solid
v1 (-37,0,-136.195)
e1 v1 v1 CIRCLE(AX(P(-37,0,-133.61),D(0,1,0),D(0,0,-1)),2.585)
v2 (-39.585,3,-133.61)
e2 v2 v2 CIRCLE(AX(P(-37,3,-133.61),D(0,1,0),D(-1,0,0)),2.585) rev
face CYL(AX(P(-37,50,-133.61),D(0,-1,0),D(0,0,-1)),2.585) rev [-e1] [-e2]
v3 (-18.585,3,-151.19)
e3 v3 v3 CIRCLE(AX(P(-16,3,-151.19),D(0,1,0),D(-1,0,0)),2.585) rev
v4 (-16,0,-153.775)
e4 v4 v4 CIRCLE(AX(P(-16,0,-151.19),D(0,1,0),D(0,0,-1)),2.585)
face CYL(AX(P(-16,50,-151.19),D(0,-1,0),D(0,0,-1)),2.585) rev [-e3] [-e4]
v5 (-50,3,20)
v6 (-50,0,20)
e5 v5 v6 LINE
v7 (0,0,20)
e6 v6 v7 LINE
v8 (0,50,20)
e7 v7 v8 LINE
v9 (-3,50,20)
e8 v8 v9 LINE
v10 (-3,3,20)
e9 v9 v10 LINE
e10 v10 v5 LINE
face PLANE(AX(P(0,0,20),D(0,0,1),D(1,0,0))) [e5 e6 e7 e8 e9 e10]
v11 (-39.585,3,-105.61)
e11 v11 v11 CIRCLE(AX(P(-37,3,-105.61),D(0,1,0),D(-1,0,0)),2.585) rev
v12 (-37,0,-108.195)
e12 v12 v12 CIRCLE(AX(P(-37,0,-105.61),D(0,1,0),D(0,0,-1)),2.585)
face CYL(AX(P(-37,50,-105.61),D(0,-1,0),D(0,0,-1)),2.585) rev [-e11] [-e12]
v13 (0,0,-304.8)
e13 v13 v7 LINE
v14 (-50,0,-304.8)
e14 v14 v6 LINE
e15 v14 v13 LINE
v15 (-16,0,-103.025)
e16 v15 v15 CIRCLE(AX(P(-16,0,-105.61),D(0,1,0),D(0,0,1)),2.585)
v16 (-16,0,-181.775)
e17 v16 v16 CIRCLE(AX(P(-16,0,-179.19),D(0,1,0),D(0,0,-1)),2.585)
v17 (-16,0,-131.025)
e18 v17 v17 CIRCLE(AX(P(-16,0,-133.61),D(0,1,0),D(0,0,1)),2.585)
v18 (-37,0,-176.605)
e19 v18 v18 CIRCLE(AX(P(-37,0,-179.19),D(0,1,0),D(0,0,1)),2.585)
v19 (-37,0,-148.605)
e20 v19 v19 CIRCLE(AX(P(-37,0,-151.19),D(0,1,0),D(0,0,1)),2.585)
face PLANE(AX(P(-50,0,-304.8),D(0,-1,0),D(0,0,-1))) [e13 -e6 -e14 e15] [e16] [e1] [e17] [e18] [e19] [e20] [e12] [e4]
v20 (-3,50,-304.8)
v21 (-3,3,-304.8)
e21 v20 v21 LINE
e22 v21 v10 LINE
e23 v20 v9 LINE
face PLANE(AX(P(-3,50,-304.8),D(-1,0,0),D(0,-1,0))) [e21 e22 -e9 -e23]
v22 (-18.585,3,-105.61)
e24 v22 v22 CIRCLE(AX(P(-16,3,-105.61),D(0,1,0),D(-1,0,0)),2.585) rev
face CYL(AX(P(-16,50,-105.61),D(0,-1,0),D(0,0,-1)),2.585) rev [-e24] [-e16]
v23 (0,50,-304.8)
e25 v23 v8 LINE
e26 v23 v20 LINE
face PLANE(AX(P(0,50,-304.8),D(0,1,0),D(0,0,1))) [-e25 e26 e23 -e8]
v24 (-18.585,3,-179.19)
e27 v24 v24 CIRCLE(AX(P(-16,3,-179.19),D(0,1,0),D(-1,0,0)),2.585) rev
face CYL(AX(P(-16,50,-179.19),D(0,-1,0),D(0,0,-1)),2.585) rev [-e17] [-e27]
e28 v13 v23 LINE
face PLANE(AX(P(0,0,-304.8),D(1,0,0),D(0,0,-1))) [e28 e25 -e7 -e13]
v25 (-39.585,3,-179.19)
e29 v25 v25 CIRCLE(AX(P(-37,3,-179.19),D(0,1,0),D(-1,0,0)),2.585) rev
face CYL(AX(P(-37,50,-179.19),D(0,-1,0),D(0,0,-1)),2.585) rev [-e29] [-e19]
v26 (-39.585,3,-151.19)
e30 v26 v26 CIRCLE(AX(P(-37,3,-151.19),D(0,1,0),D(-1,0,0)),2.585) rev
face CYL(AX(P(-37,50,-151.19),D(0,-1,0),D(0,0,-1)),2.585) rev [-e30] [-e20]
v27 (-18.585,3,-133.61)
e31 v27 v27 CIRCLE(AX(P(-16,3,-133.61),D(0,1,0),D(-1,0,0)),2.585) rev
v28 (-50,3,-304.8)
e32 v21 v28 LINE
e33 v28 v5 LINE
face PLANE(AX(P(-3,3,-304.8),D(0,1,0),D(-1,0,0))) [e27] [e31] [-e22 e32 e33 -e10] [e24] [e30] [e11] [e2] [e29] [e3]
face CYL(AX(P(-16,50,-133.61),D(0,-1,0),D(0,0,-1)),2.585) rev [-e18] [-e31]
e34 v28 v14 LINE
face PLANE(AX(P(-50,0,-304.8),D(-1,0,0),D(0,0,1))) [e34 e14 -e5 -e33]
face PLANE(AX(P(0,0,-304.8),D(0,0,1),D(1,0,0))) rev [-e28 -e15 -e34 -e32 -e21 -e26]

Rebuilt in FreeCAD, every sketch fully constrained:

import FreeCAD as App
import Part
import Sketcher
from FreeCAD import Vector
Q = App.Units.Quantity


def add_polygon(sketch, points):
    """Adds a closed chain of lines whose ends are joined by coincident constraints."""
    first, n = sketch.GeometryCount, len(points)
    for a, b in zip(points, points[1:] + points[:1]):
        sketch.addGeometry(Part.LineSegment(App.Vector(*a, 0), App.Vector(*b, 0)), False)
    for i in range(n):
        sketch.addConstraint(Sketcher.Constraint("Coincident", first + i, 2, first + (i + 1) % n, 1))

doc = App.newDocument("Part")
body = doc.addObject("PartDesign::Body", "Body")

# Sketch on XY plane
sketch1 = body.newObject("Sketcher::SketchObject", "Sketch")
sketch1.AttachmentSupport = (doc.getObject("XY_Plane"), [""])
sketch1.MapMode = "FlatFace"
add_polygon(sketch1, [(-50, 0), (0, 0), (0, 50), (-3, 50), (-3, 3), (-50, 3)])  # lines 0-5
sketch1.addConstraint([
    Sketcher.Constraint("Horizontal", 0),
    Sketcher.Constraint("Vertical", 1),
    Sketcher.Constraint("Horizontal", 2),
    Sketcher.Constraint("Vertical", 3),
    Sketcher.Constraint("Horizontal", 4),
    Sketcher.Constraint("Vertical", 5),
    Sketcher.Constraint("Coincident", 0, 2, -1, 1),
    Sketcher.Constraint("Equal", 0, 1),
    Sketcher.Constraint("Equal", 4, 3),
    Sketcher.Constraint("DistanceX", 0, 1, 0, 2, Q("50 mm")),
    Sketcher.Constraint("DistanceX", 2, 2, 2, 1, Q("3 mm")),
])
pad1 = body.newObject("PartDesign::Pad", "Pad")
pad1.Profile = sketch1
pad1.Type = "TwoLengths"
pad1.Length = 20
pad1.Length2 = 304.8

# Sketch on XZ plane
sketch2 = body.newObject("Sketcher::SketchObject", "Sketch001")
sketch2.AttachmentSupport = (doc.getObject("XZ_Plane"), [""])
sketch2.MapMode = "FlatFace"
sketch2.addGeometry([
    Part.Circle(Vector(-37, -151.2, 0), Vector(0, 0, 1), 2.6),  # 0
    Part.Circle(Vector(-16, -151.2, 0), Vector(0, 0, 1), 2.6),  # 1
    Part.Circle(Vector(-37, -179.2, 0), Vector(0, 0, 1), 2.6),  # 2
    Part.Circle(Vector(-16, -179.2, 0), Vector(0, 0, 1), 2.6),  # 3
    Part.Circle(Vector(-37, -105.6, 0), Vector(0, 0, 1), 2.6),  # 4
    Part.Circle(Vector(-16, -105.6, 0), Vector(0, 0, 1), 2.6),  # 5
    Part.Circle(Vector(-16, -133.6, 0), Vector(0, 0, 1), 2.6),  # 6
    Part.Circle(Vector(-37, -133.6, 0), Vector(0, 0, 1), 2.6),  # 7
], False)
sketch2.addConstraint([
    Sketcher.Constraint("Equal", 0, 1),
    Sketcher.Constraint("Equal", 1, 2),
    Sketcher.Constraint("Equal", 2, 3),
    Sketcher.Constraint("Equal", 3, 4),
    Sketcher.Constraint("Equal", 4, 5),
    Sketcher.Constraint("Equal", 5, 6),
    Sketcher.Constraint("Equal", 6, 7),
    Sketcher.Constraint("Horizontal", 0, 3, 1, 3),
    Sketcher.Constraint("Horizontal", 2, 3, 3, 3),
    Sketcher.Constraint("Horizontal", 4, 3, 5, 3),
    Sketcher.Constraint("Horizontal", 6, 3, 7, 3),
    Sketcher.Constraint("Vertical", 0, 3, 2, 3),
    Sketcher.Constraint("Vertical", 1, 3, 3, 3),
    Sketcher.Constraint("Vertical", 2, 3, 4, 3),
    Sketcher.Constraint("Vertical", 3, 3, 5, 3),
    Sketcher.Constraint("Vertical", 5, 3, 6, 3),
    Sketcher.Constraint("Vertical", 4, 3, 7, 3),
    Sketcher.Constraint("Diameter", 0, Q("5.17 mm")),
    Sketcher.Constraint("DistanceX", 0, 3, -1, 1, Q("37 mm")),
    Sketcher.Constraint("DistanceX", 1, 3, -1, 1, Q("16 mm")),
    Sketcher.Constraint("DistanceY", 2, 3, 0, 3, Q("28 mm")),
    Sketcher.Constraint("DistanceY", 6, 3, 5, 3, Q("28 mm")),
    Sketcher.Constraint("DistanceY", 0, 3, -1, 1, Q("151.19 mm")),
    Sketcher.Constraint("DistanceY", 4, 3, -1, 1, Q("105.61 mm")),
])
pocket1 = body.newObject("PartDesign::Pocket", "Pocket")
pocket1.Profile = sketch2
pocket1.Type = "ThroughAll"

doc.recompute()
